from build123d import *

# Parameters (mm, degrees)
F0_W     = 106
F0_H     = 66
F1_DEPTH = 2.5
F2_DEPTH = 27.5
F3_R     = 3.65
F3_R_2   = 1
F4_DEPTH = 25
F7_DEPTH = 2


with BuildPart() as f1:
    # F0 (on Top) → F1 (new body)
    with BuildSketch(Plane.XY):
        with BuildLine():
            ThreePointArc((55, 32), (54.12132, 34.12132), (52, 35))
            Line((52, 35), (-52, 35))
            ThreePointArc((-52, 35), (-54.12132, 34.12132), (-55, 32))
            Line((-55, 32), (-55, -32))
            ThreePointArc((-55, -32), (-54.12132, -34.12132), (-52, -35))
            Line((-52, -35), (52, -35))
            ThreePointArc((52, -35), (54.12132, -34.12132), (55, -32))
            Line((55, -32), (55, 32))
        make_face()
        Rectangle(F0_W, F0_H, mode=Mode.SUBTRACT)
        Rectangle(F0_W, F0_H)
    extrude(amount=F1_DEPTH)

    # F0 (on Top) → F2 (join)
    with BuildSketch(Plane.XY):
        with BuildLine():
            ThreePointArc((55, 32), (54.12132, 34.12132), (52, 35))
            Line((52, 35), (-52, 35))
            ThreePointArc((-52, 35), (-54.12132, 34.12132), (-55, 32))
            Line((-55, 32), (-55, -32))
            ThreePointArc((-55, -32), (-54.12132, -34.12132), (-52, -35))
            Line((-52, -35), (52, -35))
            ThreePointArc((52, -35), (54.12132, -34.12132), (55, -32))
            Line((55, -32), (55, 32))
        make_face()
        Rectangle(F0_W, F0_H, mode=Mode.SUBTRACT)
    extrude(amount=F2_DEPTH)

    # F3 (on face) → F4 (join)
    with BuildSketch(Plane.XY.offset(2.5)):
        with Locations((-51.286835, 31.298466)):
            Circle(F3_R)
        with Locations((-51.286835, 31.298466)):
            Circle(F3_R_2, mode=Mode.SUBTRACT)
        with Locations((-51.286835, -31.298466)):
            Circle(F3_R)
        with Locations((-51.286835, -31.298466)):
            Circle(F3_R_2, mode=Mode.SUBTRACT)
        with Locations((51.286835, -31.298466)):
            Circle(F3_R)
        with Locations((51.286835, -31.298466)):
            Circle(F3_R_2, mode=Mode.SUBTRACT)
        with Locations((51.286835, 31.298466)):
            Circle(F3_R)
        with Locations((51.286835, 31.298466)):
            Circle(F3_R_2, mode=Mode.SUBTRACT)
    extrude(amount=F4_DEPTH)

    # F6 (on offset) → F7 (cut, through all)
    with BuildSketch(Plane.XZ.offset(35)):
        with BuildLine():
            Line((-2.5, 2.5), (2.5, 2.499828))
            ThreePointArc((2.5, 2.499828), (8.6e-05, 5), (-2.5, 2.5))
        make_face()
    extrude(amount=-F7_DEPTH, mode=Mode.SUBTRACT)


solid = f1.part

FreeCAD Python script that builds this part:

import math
import FreeCAD as App
import Part
import Sketcher
Q = App.Units.Quantity


def add_polygon(sketch, points):
    """Adds a closed chain of lines whose ends are joined by coincident constraints."""
    first, n = sketch.GeometryCount, len(points)
    for a, b in zip(points, points[1:] + points[:1]):
        sketch.addGeometry(Part.LineSegment(App.Vector(*a, 0), App.Vector(*b, 0)), False)
    for i in range(n):
        sketch.addConstraint(Sketcher.Constraint("Coincident", first + i, 2, first + (i + 1) % n, 1))

doc = App.newDocument("Part")
params = doc.addObject("Spreadsheet::Sheet", "Params")
for row, (alias, value) in enumerate([
    ("sketch1_radius", "3.000001 mm"),
    ("sketch1_width", "104 mm"),
    ("sketch1_height", "64 mm"),
    ("pad1_length", "2.5 mm"),
    ("sketch2_radius", "3.000001 mm"),
    ("sketch2_width", "104 mm"),
    ("sketch2_width2", "106 mm"),
    ("sketch2_height", "64 mm"),
    ("sketch2_height2", "66 mm"),
    ("pad2_length", "27.5 mm"),
    ("sketch3_diameter", "2 mm"),
    ("sketch3_diameter2", "7.3 mm"),
    ("pad3_length", "25 mm"),
    ("sketch4_radius", "2.5 mm"),
    ("pocket1_length", "2 mm"),
], start=1):
    params.set(f"A{row}", alias)
    params.set(f"B{row}", "=" + value)
    params.setAlias(f"B{row}", alias)

body = doc.addObject("PartDesign::Body", "Body")

# Sketch on XY plane
sketch1 = doc.addObject("Sketcher::SketchObject", "Sketch")
body.addObject(sketch1)
sketch1.AttachmentSupport = (doc.XY_Plane, [""])
sketch1.MapMode = "FlatFace"
sketch1.addGeometry(Part.ArcOfCircle(Part.Circle(App.Vector(51.999999, 31.999999, 0), App.Vector(0, 0, 1), 3.000001), math.radians(0.000022), math.radians(89.999978)), False)
sketch1.addGeometry(Part.LineSegment(App.Vector(52, 35, 0), App.Vector(-52, 35, 0)), False)
sketch1.addGeometry(Part.ArcOfCircle(Part.Circle(App.Vector(-51.999999, 31.999999, 0), App.Vector(0, 0, 1), 3.000001), math.radians(90.000022), math.radians(179.999978)), False)
sketch1.addGeometry(Part.LineSegment(App.Vector(-55, 32, 0), App.Vector(-55, -32, 0)), False)
sketch1.addGeometry(Part.ArcOfCircle(Part.Circle(App.Vector(-51.999999, -31.999999, 0), App.Vector(0, 0, 1), 3.000001), math.radians(-179.999978), math.radians(-90.000022)), False)
sketch1.addGeometry(Part.LineSegment(App.Vector(-52, -35, 0), App.Vector(52, -35, 0)), False)
sketch1.addGeometry(Part.ArcOfCircle(Part.Circle(App.Vector(51.999999, -31.999999, 0), App.Vector(0, 0, 1), 3.000001), math.radians(-89.999978), math.radians(-0.000022)), False)
sketch1.addGeometry(Part.LineSegment(App.Vector(55, -32, 0), App.Vector(55, 32, 0)), False)
sketch1.addConstraint(Sketcher.Constraint("Tangent", 0, 2, 1, 1))
sketch1.addConstraint(Sketcher.Constraint("Tangent", 1, 2, 2, 1))
sketch1.addConstraint(Sketcher.Constraint("Tangent", 2, 2, 3, 1))
sketch1.addConstraint(Sketcher.Constraint("Tangent", 3, 2, 4, 1))
sketch1.addConstraint(Sketcher.Constraint("Tangent", 4, 2, 5, 1))
sketch1.addConstraint(Sketcher.Constraint("Tangent", 5, 2, 6, 1))
sketch1.addConstraint(Sketcher.Constraint("Tangent", 6, 2, 7, 1))
sketch1.addConstraint(Sketcher.Constraint("Tangent", 7, 2, 0, 1))
sketch1.addConstraint(Sketcher.Constraint("Horizontal", 1))
sketch1.addConstraint(Sketcher.Constraint("Vertical", 3))
sketch1.addConstraint(Sketcher.Constraint("Horizontal", 5))
sketch1.addConstraint(Sketcher.Constraint("Vertical", 7))
sketch1.addConstraint(Sketcher.Constraint("Equal", 0, 2))
sketch1.addConstraint(Sketcher.Constraint("Equal", 2, 4))
sketch1.addConstraint(Sketcher.Constraint("Equal", 4, 6))
sketch1.addConstraint(Sketcher.Constraint("Symmetric", 0, 3, 4, 3, -1, 1))
sketch1.addConstraint(Sketcher.Constraint("Radius", 0, Q("3.000001 mm")))
sketch1.addConstraint(Sketcher.Constraint("DistanceX", 1, 2, 1, 1, Q("104 mm")))
sketch1.addConstraint(Sketcher.Constraint("DistanceY", 3, 2, 3, 1, Q("64 mm")))
sketch1.setExpression("Constraints[16]", "Params.sketch1_radius")
sketch1.setExpression("Constraints[17]", "Params.sketch1_width")
sketch1.setExpression("Constraints[18]", "Params.sketch1_height")
pad1 = doc.addObject("PartDesign::Pad", "Pad")
body.addObject(pad1)
pad1.Profile = sketch1
pad1.setExpression("Length", "Params.pad1_length")

# Sketch on XY plane
sketch2 = doc.addObject("Sketcher::SketchObject", "Sketch001")
body.addObject(sketch2)
sketch2.AttachmentSupport = (doc.XY_Plane, [""])
sketch2.MapMode = "FlatFace"
sketch2.addGeometry(Part.ArcOfCircle(Part.Circle(App.Vector(51.999999, 31.999999, 0), App.Vector(0, 0, 1), 3.000001), math.radians(0.000022), math.radians(89.999978)), False)  # 0
sketch2.addGeometry(Part.LineSegment(App.Vector(52, 35, 0), App.Vector(-52, 35, 0)), False)  # 1
sketch2.addGeometry(Part.ArcOfCircle(Part.Circle(App.Vector(-51.999999, 31.999999, 0), App.Vector(0, 0, 1), 3.000001), math.radians(90.000022), math.radians(179.999978)), False)  # 2
sketch2.addGeometry(Part.LineSegment(App.Vector(-55, 32, 0), App.Vector(-55, -32, 0)), False)  # 3
sketch2.addGeometry(Part.ArcOfCircle(Part.Circle(App.Vector(-51.999999, -31.999999, 0), App.Vector(0, 0, 1), 3.000001), math.radians(-179.999978), math.radians(-90.000022)), False)  # 4
sketch2.addGeometry(Part.LineSegment(App.Vector(-52, -35, 0), App.Vector(52, -35, 0)), False)  # 5
sketch2.addGeometry(Part.ArcOfCircle(Part.Circle(App.Vector(51.999999, -31.999999, 0), App.Vector(0, 0, 1), 3.000001), math.radians(-89.999978), math.radians(-0.000022)), False)  # 6
sketch2.addGeometry(Part.LineSegment(App.Vector(55, -32, 0), App.Vector(55, 32, 0)), False)  # 7
add_polygon(sketch2, [(53, -33), (-53, -33), (-53, 33), (53, 33)])  # lines 8-11
sketch2.addConstraint(Sketcher.Constraint("Tangent", 0, 2, 1, 1))
sketch2.addConstraint(Sketcher.Constraint("Tangent", 1, 2, 2, 1))
sketch2.addConstraint(Sketcher.Constraint("Tangent", 2, 2, 3, 1))
sketch2.addConstraint(Sketcher.Constraint("Tangent", 3, 2, 4, 1))
sketch2.addConstraint(Sketcher.Constraint("Tangent", 4, 2, 5, 1))
sketch2.addConstraint(Sketcher.Constraint("Tangent", 5, 2, 6, 1))
sketch2.addConstraint(Sketcher.Constraint("Tangent", 6, 2, 7, 1))
sketch2.addConstraint(Sketcher.Constraint("Tangent", 7, 2, 0, 1))
sketch2.addConstraint(Sketcher.Constraint("Horizontal", 1))
sketch2.addConstraint(Sketcher.Constraint("Vertical", 3))
sketch2.addConstraint(Sketcher.Constraint("Horizontal", 5))
sketch2.addConstraint(Sketcher.Constraint("Vertical", 7))
sketch2.addConstraint(Sketcher.Constraint("Horizontal", 8))
sketch2.addConstraint(Sketcher.Constraint("Vertical", 9))
sketch2.addConstraint(Sketcher.Constraint("Horizontal", 10))
sketch2.addConstraint(Sketcher.Constraint("Vertical", 11))
sketch2.addConstraint(Sketcher.Constraint("Equal", 0, 2))
sketch2.addConstraint(Sketcher.Constraint("Equal", 2, 4))
sketch2.addConstraint(Sketcher.Constraint("Equal", 4, 6))
sketch2.addConstraint(Sketcher.Constraint("Symmetric", 0, 3, 4, 3, -1, 1))
sketch2.addConstraint(Sketcher.Constraint("Symmetric", 8, 2, 10, 2, -1, 1))
sketch2.addConstraint(Sketcher.Constraint("Radius", 0, Q("3.000001 mm")))
sketch2.addConstraint(Sketcher.Constraint("DistanceX", 1, 2, 1, 1, Q("104 mm")))
sketch2.addConstraint(Sketcher.Constraint("DistanceX", 8, 2, 8, 1, Q("106 mm")))
sketch2.addConstraint(Sketcher.Constraint("DistanceY", 3, 2, 3, 1, Q("64 mm")))
sketch2.addConstraint(Sketcher.Constraint("DistanceY", 9, 1, 9, 2, Q("66 mm")))
sketch2.setExpression("Constraints[25]", "Params.sketch2_radius")
sketch2.setExpression("Constraints[26]", "Params.sketch2_width")
sketch2.setExpression("Constraints[27]", "Params.sketch2_width2")
sketch2.setExpression("Constraints[28]", "Params.sketch2_height")
sketch2.setExpression("Constraints[29]", "Params.sketch2_height2")
pad2 = doc.addObject("PartDesign::Pad", "Pad001")
body.addObject(pad2)
pad2.Profile = sketch2
pad2.setExpression("Length", "Params.pad2_length")

# Sketch on XY plane
sketch3 = doc.addObject("Sketcher::SketchObject", "Sketch002")
body.addObject(sketch3)
sketch3.AttachmentSupport = (doc.XY_Plane, [""])
sketch3.MapMode = "FlatFace"
sketch3.AttachmentOffset = App.Placement(App.Vector(0, 0, 2.5), App.Rotation())
sketch3.addGeometry(Part.Circle(App.Vector(-51.286835, 31.298466, 0), App.Vector(0, 0, 1), 3.65), False)
sketch3.addGeometry(Part.Circle(App.Vector(-51.286835, 31.298466, 0), App.Vector(0, 0, 1), 1), False)
sketch3.addGeometry(Part.Circle(App.Vector(-51.286835, -31.298466, 0), App.Vector(0, 0, 1), 3.65), False)
sketch3.addGeometry(Part.Circle(App.Vector(-51.286835, -31.298466, 0), App.Vector(0, 0, 1), 1), False)
sketch3.addGeometry(Part.Circle(App.Vector(51.286835, -31.298466, 0), App.Vector(0, 0, 1), 3.65), False)
sketch3.addGeometry(Part.Circle(App.Vector(51.286835, -31.298466, 0), App.Vector(0, 0, 1), 1), False)
sketch3.addGeometry(Part.Circle(App.Vector(51.286835, 31.298466, 0), App.Vector(0, 0, 1), 3.65), False)
sketch3.addGeometry(Part.Circle(App.Vector(51.286835, 31.298466, 0), App.Vector(0, 0, 1), 1), False)
sketch3.addConstraint(Sketcher.Constraint("Coincident", 1, 3, 0, 3))
sketch3.addConstraint(Sketcher.Constraint("Coincident", 3, 3, 2, 3))
sketch3.addConstraint(Sketcher.Constraint("Coincident", 5, 3, 4, 3))
sketch3.addConstraint(Sketcher.Constraint("Coincident", 7, 3, 6, 3))
sketch3.addConstraint(Sketcher.Constraint("Equal", 0, 2))
sketch3.addConstraint(Sketcher.Constraint("Equal", 1, 3))
sketch3.addConstraint(Sketcher.Constraint("Equal", 2, 4))
sketch3.addConstraint(Sketcher.Constraint("Equal", 3, 5))
sketch3.addConstraint(Sketcher.Constraint("Equal", 4, 6))
sketch3.addConstraint(Sketcher.Constraint("Equal", 5, 7))
sketch3.addConstraint(Sketcher.Constraint("Symmetric", 0, 3, 4, 3, -1, 1))
sketch3.addConstraint(Sketcher.Constraint("Symmetric", 2, 3, 6, 3, -1, 1))
sketch3.addConstraint(Sketcher.Constraint("Symmetric", 2, 3, 4, 3, -2))
sketch3.addConstraint(Sketcher.Constraint("Diameter", 1, Q("2 mm")))
sketch3.addConstraint(Sketcher.Constraint("Diameter", 0, Q("7.3 mm")))
sketch3.addConstraint(Sketcher.Constraint("DistanceX", 2, 3, 4, 3, Q("102.57367 mm")))
sketch3.addConstraint(Sketcher.Constraint("DistanceY", -1, 1, 0, 3, Q("31.298466 mm")))
sketch3.setExpression("Constraints[13]", "Params.sketch3_diameter")
sketch3.setExpression("Constraints[14]", "Params.sketch3_diameter2")
pad3 = doc.addObject("PartDesign::Pad", "Pad002")
body.addObject(pad3)
pad3.Profile = sketch3
pad3.setExpression("Length", "Params.pad3_length")

# Sketch on XZ plane
sketch4 = doc.addObject("Sketcher::SketchObject", "Sketch003")
body.addObject(sketch4)
sketch4.AttachmentSupport = (doc.XZ_Plane, [""])
sketch4.MapMode = "FlatFace"
sketch4.AttachmentOffset = App.Placement(App.Vector(0, 0, 35), App.Rotation())
sketch4.addGeometry(Part.LineSegment(App.Vector(-2.5, 2.5, 0), App.Vector(2.5, 2.499828, 0)), False)
sketch4.addGeometry(Part.ArcOfCircle(Part.Circle(App.Vector(0, 2.5, 0), App.Vector(0, 0, 1), 2.5), math.radians(-0.003942), math.radians(180)), False)
sketch4.addConstraint(Sketcher.Constraint("Coincident", 0, 1, 1, 2))
sketch4.addConstraint(Sketcher.Constraint("Coincident", 1, 1, 0, 2))
sketch4.addConstraint(Sketcher.Constraint("PointOnObject", 1, 3, -2))
sketch4.addConstraint(Sketcher.Constraint("Horizontal", 1, 3, 0, 1))
sketch4.addConstraint(Sketcher.Constraint("Radius", 1, Q("2.5 mm")))
sketch4.addConstraint(Sketcher.Constraint("DistanceY", -1, 1, 1, 3, Q("2.5 mm")))
sketch4.addConstraint(Sketcher.Constraint("DistanceY", 1, 1, 1, 3, Q("0.000172 mm")))
sketch4.setExpression("Constraints[4]", "Params.sketch4_radius")
pocket1 = doc.addObject("PartDesign::Pocket", "Pocket")
body.addObject(pocket1)
pocket1.Profile = sketch4
pocket1.setExpression("Length", "Params.pocket1_length")

doc.recompute()
